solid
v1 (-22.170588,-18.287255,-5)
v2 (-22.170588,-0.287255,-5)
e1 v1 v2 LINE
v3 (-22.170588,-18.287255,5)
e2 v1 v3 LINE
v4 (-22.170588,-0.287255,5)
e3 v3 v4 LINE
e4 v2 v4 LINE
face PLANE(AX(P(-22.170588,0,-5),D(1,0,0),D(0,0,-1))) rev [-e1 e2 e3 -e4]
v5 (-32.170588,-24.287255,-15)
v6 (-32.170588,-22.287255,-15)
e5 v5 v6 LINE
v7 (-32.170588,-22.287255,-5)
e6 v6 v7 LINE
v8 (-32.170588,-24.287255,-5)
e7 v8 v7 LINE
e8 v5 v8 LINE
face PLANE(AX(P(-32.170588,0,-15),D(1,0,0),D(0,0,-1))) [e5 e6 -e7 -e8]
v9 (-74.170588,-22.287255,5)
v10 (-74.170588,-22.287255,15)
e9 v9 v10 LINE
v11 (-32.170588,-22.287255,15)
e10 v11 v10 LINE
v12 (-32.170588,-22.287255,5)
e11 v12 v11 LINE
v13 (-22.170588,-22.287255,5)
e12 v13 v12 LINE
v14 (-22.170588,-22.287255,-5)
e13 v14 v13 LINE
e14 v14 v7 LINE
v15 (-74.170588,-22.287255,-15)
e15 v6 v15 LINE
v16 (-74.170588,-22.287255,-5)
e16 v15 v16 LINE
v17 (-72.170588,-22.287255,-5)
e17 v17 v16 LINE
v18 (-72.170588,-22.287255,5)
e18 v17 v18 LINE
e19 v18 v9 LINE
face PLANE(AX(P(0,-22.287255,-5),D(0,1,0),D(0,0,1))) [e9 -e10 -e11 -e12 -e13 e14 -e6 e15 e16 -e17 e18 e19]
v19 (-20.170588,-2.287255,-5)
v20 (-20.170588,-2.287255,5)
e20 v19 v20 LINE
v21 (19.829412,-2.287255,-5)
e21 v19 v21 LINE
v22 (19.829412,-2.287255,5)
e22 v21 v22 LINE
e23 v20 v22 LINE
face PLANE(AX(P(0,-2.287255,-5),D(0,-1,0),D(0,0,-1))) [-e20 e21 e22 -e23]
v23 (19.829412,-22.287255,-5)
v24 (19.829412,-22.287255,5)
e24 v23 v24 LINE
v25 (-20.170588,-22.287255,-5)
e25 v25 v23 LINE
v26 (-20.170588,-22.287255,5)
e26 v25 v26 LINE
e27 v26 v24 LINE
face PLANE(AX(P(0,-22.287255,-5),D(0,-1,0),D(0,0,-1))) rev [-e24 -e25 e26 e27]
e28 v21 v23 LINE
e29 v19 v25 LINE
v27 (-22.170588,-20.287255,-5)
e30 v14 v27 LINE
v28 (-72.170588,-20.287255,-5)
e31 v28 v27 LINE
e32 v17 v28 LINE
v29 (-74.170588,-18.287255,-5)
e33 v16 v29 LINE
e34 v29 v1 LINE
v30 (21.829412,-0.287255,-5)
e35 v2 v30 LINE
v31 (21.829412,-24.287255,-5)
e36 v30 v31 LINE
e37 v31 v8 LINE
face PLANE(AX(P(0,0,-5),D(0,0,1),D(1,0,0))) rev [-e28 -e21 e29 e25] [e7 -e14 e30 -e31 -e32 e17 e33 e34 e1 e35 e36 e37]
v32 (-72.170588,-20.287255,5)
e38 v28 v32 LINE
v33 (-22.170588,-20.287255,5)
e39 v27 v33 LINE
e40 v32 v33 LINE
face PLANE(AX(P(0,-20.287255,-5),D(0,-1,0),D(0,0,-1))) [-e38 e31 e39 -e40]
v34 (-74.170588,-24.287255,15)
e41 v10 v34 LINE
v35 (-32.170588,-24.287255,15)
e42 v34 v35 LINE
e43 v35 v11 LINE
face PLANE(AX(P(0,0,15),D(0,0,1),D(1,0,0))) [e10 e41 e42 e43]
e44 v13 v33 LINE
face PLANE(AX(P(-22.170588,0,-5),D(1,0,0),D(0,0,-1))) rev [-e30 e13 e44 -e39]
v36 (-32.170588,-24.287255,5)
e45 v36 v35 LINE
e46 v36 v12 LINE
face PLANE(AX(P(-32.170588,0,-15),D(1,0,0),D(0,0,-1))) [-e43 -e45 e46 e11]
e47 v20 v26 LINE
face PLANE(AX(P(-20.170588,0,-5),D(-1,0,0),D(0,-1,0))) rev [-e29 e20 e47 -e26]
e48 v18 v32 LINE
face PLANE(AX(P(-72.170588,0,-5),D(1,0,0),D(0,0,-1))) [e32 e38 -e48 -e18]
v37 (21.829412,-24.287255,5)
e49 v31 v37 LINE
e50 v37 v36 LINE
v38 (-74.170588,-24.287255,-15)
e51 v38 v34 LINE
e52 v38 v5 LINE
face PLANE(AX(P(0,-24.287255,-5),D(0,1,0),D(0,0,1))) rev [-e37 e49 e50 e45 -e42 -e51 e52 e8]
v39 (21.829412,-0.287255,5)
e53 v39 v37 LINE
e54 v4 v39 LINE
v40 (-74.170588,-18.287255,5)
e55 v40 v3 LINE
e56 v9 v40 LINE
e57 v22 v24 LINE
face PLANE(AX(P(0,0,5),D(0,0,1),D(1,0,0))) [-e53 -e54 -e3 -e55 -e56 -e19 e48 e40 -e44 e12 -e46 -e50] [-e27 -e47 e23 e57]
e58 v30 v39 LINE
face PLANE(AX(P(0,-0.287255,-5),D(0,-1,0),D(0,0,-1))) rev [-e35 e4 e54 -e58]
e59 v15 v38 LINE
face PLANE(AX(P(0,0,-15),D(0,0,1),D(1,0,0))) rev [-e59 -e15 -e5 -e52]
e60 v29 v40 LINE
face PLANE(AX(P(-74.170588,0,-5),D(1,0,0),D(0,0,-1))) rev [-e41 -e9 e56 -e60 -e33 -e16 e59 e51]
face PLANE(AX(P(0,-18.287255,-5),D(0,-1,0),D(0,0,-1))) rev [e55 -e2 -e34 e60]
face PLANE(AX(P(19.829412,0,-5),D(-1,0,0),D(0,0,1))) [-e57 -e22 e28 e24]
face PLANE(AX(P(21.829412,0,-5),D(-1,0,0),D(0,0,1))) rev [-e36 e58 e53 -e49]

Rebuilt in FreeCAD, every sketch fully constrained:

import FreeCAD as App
import Part
import Sketcher

V = App.Vector
Q = App.Units.Quantity

doc = App.newDocument("Part")
params = doc.addObject("Spreadsheet::Sheet", "Params")
for row, (alias, value) in enumerate([
    ("sketch1_width", "96 mm"),
    ("sketch1_width2", "44 mm"),
    ("sketch1_width3", "50 mm"),
    ("sketch1_width4", "40 mm"),
    ("sketch1_height", "24 mm"),
    ("pad1_length", "5 mm"),
    ("pad1_length2", "5 mm"),
    ("sketch2_width", "42 mm"),
    ("sketch2_height", "2 mm"),
    ("pad2_length", "10 mm"),
    ("pad2_length2", "20 mm"),
], start=1):
    params.set(f"A{row}", alias)
    params.set(f"B{row}", "=" + value)
    params.setAlias(f"B{row}", alias)

body = doc.addObject("PartDesign::Body", "Body")

# Sketch on XY plane
sketch1 = body.newObject("Sketcher::SketchObject", "Sketch")
sketch1.AttachmentSupport = (doc.getObject("XY_Plane"), [""])
sketch1.MapMode = "FlatFace"
sketch1.addGeometry([
    Part.LineSegment(V(-74.170588, -24.287255, 0), V(21.829412, -24.287255, 0)),  # 0
    Part.LineSegment(V(21.829412, -24.287255, 0), V(21.829412, -0.287255, 0)),  # 1
    Part.LineSegment(V(21.829412, -0.287255, 0), V(-22.170588, -0.287255, 0)),  # 2
    Part.LineSegment(V(-22.170588, -0.287255, 0), V(-22.170588, -18.287255, 0)),  # 3
    Part.LineSegment(V(-22.170588, -18.287255, 0), V(-74.170588, -18.287255, 0)),  # 4
    Part.LineSegment(V(-74.170588, -18.287255, 0), V(-74.170588, -24.287255, 0)),  # 5
    Part.LineSegment(V(-22.170588, -22.287255, 0), V(-72.170588, -22.287255, 0)),  # 6
    Part.LineSegment(V(-72.170588, -22.287255, 0), V(-72.170588, -20.287255, 0)),  # 7
    Part.LineSegment(V(-72.170588, -20.287255, 0), V(-22.170588, -20.287255, 0)),  # 8
    Part.LineSegment(V(-22.170588, -20.287255, 0), V(-22.170588, -22.287255, 0)),  # 9
    Part.LineSegment(V(19.829412, -22.287255, 0), V(-20.170588, -22.287255, 0)),  # 10
    Part.LineSegment(V(-20.170588, -22.287255, 0), V(-20.170588, -2.287255, 0)),  # 11
    Part.LineSegment(V(-20.170588, -2.287255, 0), V(19.829412, -2.287255, 0)),  # 12
    Part.LineSegment(V(19.829412, -2.287255, 0), V(19.829412, -22.287255, 0)),  # 13
], False)
sketch1.addConstraint([
    Sketcher.Constraint("Coincident", 0, 2, 1, 1),
    Sketcher.Constraint("Coincident", 1, 2, 2, 1),
    Sketcher.Constraint("Coincident", 2, 2, 3, 1),
    Sketcher.Constraint("Coincident", 3, 2, 4, 1),
    Sketcher.Constraint("Coincident", 4, 2, 5, 1),
    Sketcher.Constraint("Coincident", 5, 2, 0, 1),
    Sketcher.Constraint("Coincident", 6, 2, 7, 1),
    Sketcher.Constraint("Coincident", 7, 2, 8, 1),
    Sketcher.Constraint("Coincident", 8, 2, 9, 1),
    Sketcher.Constraint("Coincident", 9, 2, 6, 1),
    Sketcher.Constraint("Coincident", 10, 2, 11, 1),
    Sketcher.Constraint("Coincident", 11, 2, 12, 1),
    Sketcher.Constraint("Coincident", 12, 2, 13, 1),
    Sketcher.Constraint("Coincident", 13, 2, 10, 1),
    Sketcher.Constraint("Horizontal", 0),
    Sketcher.Constraint("Vertical", 1),
    Sketcher.Constraint("Horizontal", 2),
    Sketcher.Constraint("Vertical", 3),
    Sketcher.Constraint("Horizontal", 4),
    Sketcher.Constraint("Vertical", 5),
    Sketcher.Constraint("Horizontal", 6),
    Sketcher.Constraint("Vertical", 7),
    Sketcher.Constraint("Horizontal", 8),
    Sketcher.Constraint("Vertical", 9),
    Sketcher.Constraint("Horizontal", 10),
    Sketcher.Constraint("Vertical", 11),
    Sketcher.Constraint("Horizontal", 12),
    Sketcher.Constraint("Vertical", 13),
    Sketcher.Constraint("Horizontal", 9, 2, 10, 2),
    Sketcher.Constraint("Vertical", 3, 2, 8, 2),
    Sketcher.Constraint("DistanceX", 0, 1, 0, 2, Q("96 mm")),
    Sketcher.Constraint("DistanceX", 2, 2, 2, 1, Q("44 mm")),
    Sketcher.Constraint("DistanceX", 6, 2, 6, 1, Q("50 mm")),
    Sketcher.Constraint("DistanceX", 10, 2, 10, 1, Q("40 mm")),
    Sketcher.Constraint("DistanceY", 1, 1, 1, 2, Q("24 mm")),
    Sketcher.Constraint("DistanceY", 3, 2, 3, 1, Q("18 mm")),
    Sketcher.Constraint("DistanceY", 7, 1, 7, 2, Q("2 mm")),
    Sketcher.Constraint("DistanceY", 11, 1, 11, 2, Q("20 mm")),
    Sketcher.Constraint("DistanceY", 5, 2, 6, 2, Q("2 mm")),
    Sketcher.Constraint("DistanceX", 9, 2, 10, 2, Q("2 mm")),
    Sketcher.Constraint("DistanceX", -1, 1, 0, 2, Q("21.829412 mm")),
    Sketcher.Constraint("DistanceY", 0, 2, -1, 1, Q("24.287255 mm")),
])
sketch1.setExpression("Constraints[30]", "Params.sketch1_width")
sketch1.setExpression("Constraints[31]", "Params.sketch1_width2")
sketch1.setExpression("Constraints[32]", "Params.sketch1_width3")
sketch1.setExpression("Constraints[33]", "Params.sketch1_width4")
sketch1.setExpression("Constraints[34]", "Params.sketch1_height")
pad1 = body.newObject("PartDesign::Pad", "Pad")
pad1.Profile = sketch1
pad1.Type = "TwoLengths"
pad1.setExpression("Length", "Params.pad1_length")
pad1.setExpression("Length2", "Params.pad1_length2")

# Sketch on XY plane
sketch2 = body.newObject("Sketcher::SketchObject", "Sketch001")
sketch2.AttachmentSupport = (doc.getObject("XY_Plane"), [""])
sketch2.MapMode = "FlatFace"
sketch2.AttachmentOffset = App.Placement(V(0, 0, 5), App.Rotation())
sketch2.addGeometry([
    Part.LineSegment(V(-74.170588, -24.287255, 0), V(-32.170588, -24.287255, 0)),
    Part.LineSegment(V(-32.170588, -24.287255, 0), V(-32.170588, -22.287255, 0)),
    Part.LineSegment(V(-32.170588, -22.287255, 0), V(-74.170588, -22.287255, 0)),
    Part.LineSegment(V(-74.170588, -22.287255, 0), V(-74.170588, -24.287255, 0)),
], False)
sketch2.addConstraint([
    Sketcher.Constraint("Coincident", 0, 2, 1, 1),
    Sketcher.Constraint("Coincident", 1, 2, 2, 1),
    Sketcher.Constraint("Coincident", 2, 2, 3, 1),
    Sketcher.Constraint("Coincident", 3, 2, 0, 1),
    Sketcher.Constraint("Horizontal", 0),
    Sketcher.Constraint("Vertical", 1),
    Sketcher.Constraint("Horizontal", 2),
    Sketcher.Constraint("Vertical", 3),
    Sketcher.Constraint("DistanceX", 0, 1, 0, 2, Q("42 mm")),
    Sketcher.Constraint("DistanceY", 1, 1, 1, 2, Q("2 mm")),
    Sketcher.Constraint("DistanceX", 0, 2, -1, 1, Q("32.170588 mm")),
    Sketcher.Constraint("DistanceY", 0, 2, -1, 1, Q("24.287255 mm")),
])
sketch2.setExpression("Constraints[8]", "Params.sketch2_width")
sketch2.setExpression("Constraints[9]", "Params.sketch2_height")
pad2 = body.newObject("PartDesign::Pad", "Pad001")
pad2.Profile = sketch2
pad2.Type = "TwoLengths"
pad2.setExpression("Length", "Params.pad2_length")
pad2.setExpression("Length2", "Params.pad2_length2")

doc.recompute()
